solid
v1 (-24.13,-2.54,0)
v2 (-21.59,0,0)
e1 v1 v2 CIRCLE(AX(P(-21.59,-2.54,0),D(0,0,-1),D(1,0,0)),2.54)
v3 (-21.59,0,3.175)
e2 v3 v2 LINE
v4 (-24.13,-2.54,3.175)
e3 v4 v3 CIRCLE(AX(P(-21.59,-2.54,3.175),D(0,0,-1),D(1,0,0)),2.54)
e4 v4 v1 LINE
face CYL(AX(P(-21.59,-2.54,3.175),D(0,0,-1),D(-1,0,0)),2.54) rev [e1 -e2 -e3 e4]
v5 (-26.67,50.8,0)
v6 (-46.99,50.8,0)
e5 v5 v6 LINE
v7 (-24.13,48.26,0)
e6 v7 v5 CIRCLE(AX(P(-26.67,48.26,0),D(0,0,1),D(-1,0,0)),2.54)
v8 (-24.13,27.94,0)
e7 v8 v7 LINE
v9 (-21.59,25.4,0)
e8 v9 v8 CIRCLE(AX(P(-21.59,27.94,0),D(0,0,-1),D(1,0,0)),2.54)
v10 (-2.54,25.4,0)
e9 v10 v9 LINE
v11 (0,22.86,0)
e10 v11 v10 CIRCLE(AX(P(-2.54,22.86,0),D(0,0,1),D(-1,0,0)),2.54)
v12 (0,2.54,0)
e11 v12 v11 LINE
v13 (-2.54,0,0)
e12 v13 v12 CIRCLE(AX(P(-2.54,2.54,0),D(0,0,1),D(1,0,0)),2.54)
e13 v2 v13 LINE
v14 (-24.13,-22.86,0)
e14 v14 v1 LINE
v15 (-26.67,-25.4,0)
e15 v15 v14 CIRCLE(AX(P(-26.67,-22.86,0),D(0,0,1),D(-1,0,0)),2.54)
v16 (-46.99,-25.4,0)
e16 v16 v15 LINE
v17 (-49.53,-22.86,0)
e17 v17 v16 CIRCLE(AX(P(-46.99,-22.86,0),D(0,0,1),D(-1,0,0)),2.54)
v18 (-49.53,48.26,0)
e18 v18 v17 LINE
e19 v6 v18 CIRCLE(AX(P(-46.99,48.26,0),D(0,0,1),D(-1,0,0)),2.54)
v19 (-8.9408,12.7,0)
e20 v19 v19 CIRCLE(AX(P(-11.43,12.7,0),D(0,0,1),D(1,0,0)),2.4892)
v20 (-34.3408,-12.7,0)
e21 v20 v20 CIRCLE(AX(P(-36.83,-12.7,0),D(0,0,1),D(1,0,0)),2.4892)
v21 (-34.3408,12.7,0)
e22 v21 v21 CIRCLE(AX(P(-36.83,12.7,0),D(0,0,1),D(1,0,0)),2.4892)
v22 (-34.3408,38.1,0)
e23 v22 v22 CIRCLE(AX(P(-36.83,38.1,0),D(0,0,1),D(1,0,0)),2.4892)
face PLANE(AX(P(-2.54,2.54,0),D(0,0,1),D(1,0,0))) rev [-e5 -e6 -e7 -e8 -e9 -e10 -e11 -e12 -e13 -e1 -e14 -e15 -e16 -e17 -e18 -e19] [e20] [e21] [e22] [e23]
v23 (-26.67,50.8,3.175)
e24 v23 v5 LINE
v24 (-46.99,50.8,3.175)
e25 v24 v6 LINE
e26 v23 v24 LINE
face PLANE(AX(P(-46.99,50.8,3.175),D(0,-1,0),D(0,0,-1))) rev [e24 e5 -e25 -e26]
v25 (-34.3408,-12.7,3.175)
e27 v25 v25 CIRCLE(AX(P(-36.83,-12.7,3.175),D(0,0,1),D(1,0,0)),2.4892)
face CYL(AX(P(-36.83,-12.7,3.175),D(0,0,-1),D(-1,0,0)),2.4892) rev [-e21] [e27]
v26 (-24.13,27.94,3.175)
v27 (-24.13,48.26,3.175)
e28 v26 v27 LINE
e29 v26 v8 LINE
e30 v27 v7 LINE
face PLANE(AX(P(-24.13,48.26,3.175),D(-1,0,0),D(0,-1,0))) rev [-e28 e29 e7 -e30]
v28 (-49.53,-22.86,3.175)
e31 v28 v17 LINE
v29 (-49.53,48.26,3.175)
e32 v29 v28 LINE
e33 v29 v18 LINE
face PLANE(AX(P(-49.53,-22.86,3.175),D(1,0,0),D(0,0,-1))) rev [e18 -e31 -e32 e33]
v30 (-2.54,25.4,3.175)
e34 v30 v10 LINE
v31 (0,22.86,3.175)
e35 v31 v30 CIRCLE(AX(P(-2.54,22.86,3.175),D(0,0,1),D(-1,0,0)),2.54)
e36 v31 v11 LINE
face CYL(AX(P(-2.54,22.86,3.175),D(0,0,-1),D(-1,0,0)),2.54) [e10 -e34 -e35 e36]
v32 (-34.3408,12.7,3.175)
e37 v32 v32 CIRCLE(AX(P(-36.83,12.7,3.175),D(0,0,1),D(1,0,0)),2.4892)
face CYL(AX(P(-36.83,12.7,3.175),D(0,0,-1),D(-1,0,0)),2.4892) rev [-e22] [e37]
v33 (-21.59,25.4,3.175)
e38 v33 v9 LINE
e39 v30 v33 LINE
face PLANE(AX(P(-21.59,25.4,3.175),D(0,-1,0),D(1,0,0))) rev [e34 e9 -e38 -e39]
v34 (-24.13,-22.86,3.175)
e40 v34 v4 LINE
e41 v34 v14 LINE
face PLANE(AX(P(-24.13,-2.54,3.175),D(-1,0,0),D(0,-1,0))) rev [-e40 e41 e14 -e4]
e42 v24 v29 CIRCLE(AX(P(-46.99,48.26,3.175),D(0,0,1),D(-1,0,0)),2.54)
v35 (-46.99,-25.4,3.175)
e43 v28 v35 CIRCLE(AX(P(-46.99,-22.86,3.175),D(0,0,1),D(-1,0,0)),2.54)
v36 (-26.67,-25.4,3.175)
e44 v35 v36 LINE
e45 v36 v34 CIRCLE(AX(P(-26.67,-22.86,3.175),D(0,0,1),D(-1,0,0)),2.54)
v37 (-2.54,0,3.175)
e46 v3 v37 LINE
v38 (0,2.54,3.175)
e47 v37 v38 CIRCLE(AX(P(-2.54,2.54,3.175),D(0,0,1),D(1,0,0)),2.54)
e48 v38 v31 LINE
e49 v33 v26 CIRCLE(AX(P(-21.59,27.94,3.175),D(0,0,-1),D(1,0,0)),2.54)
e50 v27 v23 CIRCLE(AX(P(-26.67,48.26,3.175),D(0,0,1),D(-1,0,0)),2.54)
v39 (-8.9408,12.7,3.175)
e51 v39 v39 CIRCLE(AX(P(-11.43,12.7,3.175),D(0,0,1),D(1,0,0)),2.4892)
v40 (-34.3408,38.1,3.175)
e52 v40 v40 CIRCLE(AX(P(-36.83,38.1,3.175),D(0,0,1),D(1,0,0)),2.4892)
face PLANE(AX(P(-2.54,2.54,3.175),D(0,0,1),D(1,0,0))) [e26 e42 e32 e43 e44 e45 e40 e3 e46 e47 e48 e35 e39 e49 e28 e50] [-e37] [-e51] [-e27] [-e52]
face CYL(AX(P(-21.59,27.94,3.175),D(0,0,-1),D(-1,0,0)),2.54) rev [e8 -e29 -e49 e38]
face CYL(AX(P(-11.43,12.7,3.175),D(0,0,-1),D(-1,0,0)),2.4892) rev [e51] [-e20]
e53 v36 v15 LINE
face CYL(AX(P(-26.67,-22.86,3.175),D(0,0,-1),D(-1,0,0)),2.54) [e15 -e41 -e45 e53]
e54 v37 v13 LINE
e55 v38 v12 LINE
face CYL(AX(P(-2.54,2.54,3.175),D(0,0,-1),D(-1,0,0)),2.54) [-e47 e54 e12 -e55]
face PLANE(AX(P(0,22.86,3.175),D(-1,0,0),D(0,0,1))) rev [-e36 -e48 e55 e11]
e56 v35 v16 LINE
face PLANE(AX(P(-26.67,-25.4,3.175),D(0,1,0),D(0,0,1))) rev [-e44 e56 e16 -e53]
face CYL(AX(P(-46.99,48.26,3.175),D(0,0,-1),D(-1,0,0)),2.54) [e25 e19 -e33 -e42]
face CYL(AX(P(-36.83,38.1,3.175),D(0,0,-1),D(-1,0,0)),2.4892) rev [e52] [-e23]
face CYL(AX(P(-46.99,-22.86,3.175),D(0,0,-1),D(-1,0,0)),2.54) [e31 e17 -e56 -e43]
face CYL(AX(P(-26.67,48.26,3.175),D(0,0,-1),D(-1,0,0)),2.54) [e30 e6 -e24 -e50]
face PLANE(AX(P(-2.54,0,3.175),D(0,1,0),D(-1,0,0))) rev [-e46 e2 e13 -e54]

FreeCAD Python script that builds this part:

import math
import FreeCAD as App
import Part
import Sketcher

V = App.Vector
Q = App.Units.Quantity

doc = App.newDocument("Part")
params = doc.addObject("Spreadsheet::Sheet", "Params")
for row, (alias, value) in enumerate([
    ("sketch1_radius", "0.1 in"),
    ("sketch1_diameter", "0.196 in"),
    ("sketch1_width", "0.8 in"),
    ("sketch1_width2", "0.75 in"),
    ("pad1_length", "0.125 in"),
], start=1):
    params.set(f"A{row}", alias)
    params.set(f"B{row}", "=" + value)
    params.setAlias(f"B{row}", alias)

body = doc.addObject("PartDesign::Body", "Body")

# Sketch on XY plane
sketch1 = body.newObject("Sketcher::SketchObject", "Sketch")
sketch1.AttachmentSupport = (doc.getObject("XY_Plane"), [""])
sketch1.MapMode = "FlatFace"
sketch1.addGeometry([
    Part.LineSegment(V(-21.6, 0, 0), V(-2.5, 0, 0)),  # 0
    Part.ArcOfCircle(Part.Circle(V(-2.5, 2.5, 0), V(0, 0, 1), 2.5), math.radians(-90), math.radians(0)),  # 1
    Part.LineSegment(V(0, 2.5, 0), V(0, 22.9, 0)),  # 2
    Part.ArcOfCircle(Part.Circle(V(-2.5, 22.9, 0), V(0, 0, 1), 2.5), math.radians(0), math.radians(90)),  # 3
    Part.LineSegment(V(-2.5, 25.4, 0), V(-21.6, 25.4, 0)),  # 4
    Part.ArcOfCircle(Part.Circle(V(-21.6, 27.9, 0), V(0, 0, 1), 2.5), math.radians(-180), math.radians(-90)),  # 5
    Part.LineSegment(V(-24.1, 27.9, 0), V(-24.1, 48.3, 0)),  # 6
    Part.ArcOfCircle(Part.Circle(V(-26.7, 48.3, 0), V(0, 0, 1), 2.5), math.radians(0), math.radians(90)),  # 7
    Part.LineSegment(V(-26.7, 50.8, 0), V(-47, 50.8, 0)),  # 8
    Part.ArcOfCircle(Part.Circle(V(-47, 48.3, 0), V(0, 0, 1), 2.5), math.radians(90), math.radians(180)),  # 9
    Part.LineSegment(V(-49.5, 48.3, 0), V(-49.5, -22.9, 0)),  # 10
    Part.ArcOfCircle(Part.Circle(V(-47, -22.9, 0), V(0, 0, 1), 2.5), math.radians(-180), math.radians(-90)),  # 11
    Part.LineSegment(V(-47, -25.4, 0), V(-26.7, -25.4, 0)),  # 12
    Part.ArcOfCircle(Part.Circle(V(-26.7, -22.9, 0), V(0, 0, 1), 2.5), math.radians(-90), math.radians(0)),  # 13
    Part.LineSegment(V(-24.1, -22.9, 0), V(-24.1, -2.5, 0)),  # 14
    Part.ArcOfCircle(Part.Circle(V(-21.6, -2.5, 0), V(0, 0, 1), 2.5), math.radians(90), math.radians(180)),  # 15
    Part.Circle(V(-36.8, -12.7, 0), V(0, 0, 1), 2.5),  # 16
    Part.Circle(V(-11.4, 12.7, 0), V(0, 0, 1), 2.5),  # 17
    Part.Circle(V(-36.8, 12.7, 0), V(0, 0, 1), 2.5),  # 18
    Part.Circle(V(-36.8, 38.1, 0), V(0, 0, 1), 2.5),  # 19
], False)
sketch1.addConstraint([
    Sketcher.Constraint("Tangent", 0, 2, 1, 1),
    Sketcher.Constraint("Tangent", 1, 2, 2, 1),
    Sketcher.Constraint("Tangent", 2, 2, 3, 1),
    Sketcher.Constraint("Tangent", 3, 2, 4, 1),
    Sketcher.Constraint("Tangent", 4, 2, 5, 2),
    Sketcher.Constraint("Tangent", 5, 1, 6, 1),
    Sketcher.Constraint("Tangent", 6, 2, 7, 1),
    Sketcher.Constraint("Tangent", 7, 2, 8, 1),
    Sketcher.Constraint("Tangent", 8, 2, 9, 1),
    Sketcher.Constraint("Tangent", 9, 2, 10, 1),
    Sketcher.Constraint("Tangent", 10, 2, 11, 1),
    Sketcher.Constraint("Tangent", 11, 2, 12, 1),
    Sketcher.Constraint("Tangent", 12, 2, 13, 1),
    Sketcher.Constraint("Tangent", 13, 2, 14, 1),
    Sketcher.Constraint("Tangent", 14, 2, 15, 2),
    Sketcher.Constraint("Tangent", 15, 1, 0, 1),
    Sketcher.Constraint("Horizontal", 0),
    Sketcher.Constraint("Vertical", 2),
    Sketcher.Constraint("Horizontal", 4),
    Sketcher.Constraint("Vertical", 6),
    Sketcher.Constraint("Horizontal", 8),
    Sketcher.Constraint("Vertical", 10),
    Sketcher.Constraint("Horizontal", 12),
    Sketcher.Constraint("Vertical", 14),
    Sketcher.Constraint("Equal", 1, 3),
    Sketcher.Constraint("Equal", 3, 5),
    Sketcher.Constraint("Equal", 5, 7),
    Sketcher.Constraint("Equal", 7, 9),
    Sketcher.Constraint("Equal", 9, 11),
    Sketcher.Constraint("Equal", 11, 13),
    Sketcher.Constraint("Equal", 13, 15),
    Sketcher.Constraint("Equal", 16, 17),
    Sketcher.Constraint("Equal", 17, 18),
    Sketcher.Constraint("Equal", 18, 19),
    Sketcher.Constraint("Symmetric", 16, 3, 18, 3, -1),
    Sketcher.Constraint("PointOnObject", 0, 2, -1),
    Sketcher.Constraint("PointOnObject", 1, 2, -2),
    Sketcher.Constraint("Horizontal", 17, 3, 18, 3),
    Sketcher.Constraint("Vertical", 7, 3, 13, 3),
    Sketcher.Constraint("Vertical", 18, 3, 19, 3),
    Sketcher.Constraint("Equal", 12, 2),
    Sketcher.Constraint("Equal", 2, 6),
    Sketcher.Constraint("Equal", 6, 14),
    Sketcher.Constraint("Radius", 1, Q("0.1 in")),
    Sketcher.Constraint("Diameter", 16, Q("0.196 in")),
    Sketcher.Constraint("DistanceX", 8, 2, 8, 1, Q("0.8 in")),
    Sketcher.Constraint("DistanceX", 16, 3, 17, 3, Q("1 in")),
    Sketcher.Constraint("DistanceY", 16, 3, 17, 3, Q("1 in")),
    Sketcher.Constraint("DistanceY", 18, 3, 19, 3, Q("1 in")),
    Sketcher.Constraint("DistanceX", 0, 1, 0, 2, Q("0.75 in")),
    Sketcher.Constraint("DistanceX", 11, 3, 16, 3, Q("0.4 in")),
])
sketch1.setExpression("Constraints[43]", "Params.sketch1_radius")
sketch1.setExpression("Constraints[44]", "Params.sketch1_diameter")
sketch1.setExpression("Constraints[45]", "Params.sketch1_width")
sketch1.setExpression("Constraints[49]", "Params.sketch1_width2")
pad1 = body.newObject("PartDesign::Pad", "Pad")
pad1.Profile = sketch1
pad1.setExpression("Length", "Params.pad1_length")

doc.recompute()
